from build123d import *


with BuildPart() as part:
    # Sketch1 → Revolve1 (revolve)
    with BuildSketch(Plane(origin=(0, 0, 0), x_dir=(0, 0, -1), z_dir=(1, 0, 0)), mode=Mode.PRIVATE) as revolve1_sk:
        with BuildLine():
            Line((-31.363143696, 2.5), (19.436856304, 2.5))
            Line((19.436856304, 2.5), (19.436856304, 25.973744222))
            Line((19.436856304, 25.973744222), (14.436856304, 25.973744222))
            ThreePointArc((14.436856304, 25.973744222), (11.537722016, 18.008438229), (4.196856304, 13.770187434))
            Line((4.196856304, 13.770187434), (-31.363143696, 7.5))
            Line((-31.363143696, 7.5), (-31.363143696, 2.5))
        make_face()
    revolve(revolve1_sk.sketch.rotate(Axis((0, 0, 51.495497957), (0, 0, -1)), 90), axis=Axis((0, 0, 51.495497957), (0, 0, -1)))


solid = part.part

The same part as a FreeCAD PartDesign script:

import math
import FreeCAD as App
import Part
import Sketcher
Q = App.Units.Quantity

doc = App.newDocument("Part")
body = doc.addObject("PartDesign::Body", "Body")

# Sketch on YZ plane
sketch1 = body.newObject("Sketcher::SketchObject", "Sketch")
sketch1.AttachmentSupport = (doc.getObject("YZ_Plane"), [""])
sketch1.MapMode = "FlatFace"
sketch1.addGeometry([
    Part.LineSegment(App.Vector(2.5, 31.4, 0), App.Vector(2.5, -19.4, 0)),  # 0
    Part.LineSegment(App.Vector(2.5, -19.4, 0), App.Vector(26, -19.4, 0)),  # 1
    Part.LineSegment(App.Vector(26, -19.4, 0), App.Vector(26, -14.4, 0)),  # 2
    Part.ArcOfCircle(Part.Circle(App.Vector(26, -2, 0), App.Vector(0, 0, 1), 12.4), math.radians(-170), math.radians(-90)),  # 3
    Part.LineSegment(App.Vector(13.8, -4.2, 0), App.Vector(7.5, 31.4, 0)),  # 4
    Part.LineSegment(App.Vector(7.5, 31.4, 0), App.Vector(2.5, 31.4, 0)),  # 5
], False)
sketch1.addConstraint([
    Sketcher.Constraint("Coincident", 0, 2, 1, 1),
    Sketcher.Constraint("Coincident", 1, 2, 2, 1),
    Sketcher.Constraint("Coincident", 2, 2, 3, 2),
    Sketcher.Constraint("Tangent", 3, 1, 4, 1),
    Sketcher.Constraint("Coincident", 4, 2, 5, 1),
    Sketcher.Constraint("Coincident", 5, 2, 0, 1),
    Sketcher.Constraint("Vertical", 0),
    Sketcher.Constraint("Horizontal", 1),
    Sketcher.Constraint("Vertical", 2),
    Sketcher.Constraint("Horizontal", 5),
    Sketcher.Constraint("Vertical", 3, 3, 1, 2),
    Sketcher.Constraint("Equal", 5, 2),
    Sketcher.Constraint("DistanceX", 5, 2, 5, 1, Q("5 mm")),
    Sketcher.Constraint("Angle", 4, Q("100 deg")),
    Sketcher.Constraint("DistanceY", 0, 2, 0, 1, Q("50.8 mm")),
    Sketcher.Constraint("DistanceX", -1, 1, 0, 2, Q("2.5 mm")),
    Sketcher.Constraint("DistanceY", 2, 2, 3, 1, Q("10.24 mm")),
    Sketcher.Constraint("DistanceY", 3, 3, -1, 1, Q("2.04504 mm")),
])
revolution = body.newObject("PartDesign::Revolution", "Revolution")
revolution.Profile = sketch1
revolution.ReferenceAxis = (sketch1, ["V_Axis"])
revolution.Angle = 360

doc.recompute()
